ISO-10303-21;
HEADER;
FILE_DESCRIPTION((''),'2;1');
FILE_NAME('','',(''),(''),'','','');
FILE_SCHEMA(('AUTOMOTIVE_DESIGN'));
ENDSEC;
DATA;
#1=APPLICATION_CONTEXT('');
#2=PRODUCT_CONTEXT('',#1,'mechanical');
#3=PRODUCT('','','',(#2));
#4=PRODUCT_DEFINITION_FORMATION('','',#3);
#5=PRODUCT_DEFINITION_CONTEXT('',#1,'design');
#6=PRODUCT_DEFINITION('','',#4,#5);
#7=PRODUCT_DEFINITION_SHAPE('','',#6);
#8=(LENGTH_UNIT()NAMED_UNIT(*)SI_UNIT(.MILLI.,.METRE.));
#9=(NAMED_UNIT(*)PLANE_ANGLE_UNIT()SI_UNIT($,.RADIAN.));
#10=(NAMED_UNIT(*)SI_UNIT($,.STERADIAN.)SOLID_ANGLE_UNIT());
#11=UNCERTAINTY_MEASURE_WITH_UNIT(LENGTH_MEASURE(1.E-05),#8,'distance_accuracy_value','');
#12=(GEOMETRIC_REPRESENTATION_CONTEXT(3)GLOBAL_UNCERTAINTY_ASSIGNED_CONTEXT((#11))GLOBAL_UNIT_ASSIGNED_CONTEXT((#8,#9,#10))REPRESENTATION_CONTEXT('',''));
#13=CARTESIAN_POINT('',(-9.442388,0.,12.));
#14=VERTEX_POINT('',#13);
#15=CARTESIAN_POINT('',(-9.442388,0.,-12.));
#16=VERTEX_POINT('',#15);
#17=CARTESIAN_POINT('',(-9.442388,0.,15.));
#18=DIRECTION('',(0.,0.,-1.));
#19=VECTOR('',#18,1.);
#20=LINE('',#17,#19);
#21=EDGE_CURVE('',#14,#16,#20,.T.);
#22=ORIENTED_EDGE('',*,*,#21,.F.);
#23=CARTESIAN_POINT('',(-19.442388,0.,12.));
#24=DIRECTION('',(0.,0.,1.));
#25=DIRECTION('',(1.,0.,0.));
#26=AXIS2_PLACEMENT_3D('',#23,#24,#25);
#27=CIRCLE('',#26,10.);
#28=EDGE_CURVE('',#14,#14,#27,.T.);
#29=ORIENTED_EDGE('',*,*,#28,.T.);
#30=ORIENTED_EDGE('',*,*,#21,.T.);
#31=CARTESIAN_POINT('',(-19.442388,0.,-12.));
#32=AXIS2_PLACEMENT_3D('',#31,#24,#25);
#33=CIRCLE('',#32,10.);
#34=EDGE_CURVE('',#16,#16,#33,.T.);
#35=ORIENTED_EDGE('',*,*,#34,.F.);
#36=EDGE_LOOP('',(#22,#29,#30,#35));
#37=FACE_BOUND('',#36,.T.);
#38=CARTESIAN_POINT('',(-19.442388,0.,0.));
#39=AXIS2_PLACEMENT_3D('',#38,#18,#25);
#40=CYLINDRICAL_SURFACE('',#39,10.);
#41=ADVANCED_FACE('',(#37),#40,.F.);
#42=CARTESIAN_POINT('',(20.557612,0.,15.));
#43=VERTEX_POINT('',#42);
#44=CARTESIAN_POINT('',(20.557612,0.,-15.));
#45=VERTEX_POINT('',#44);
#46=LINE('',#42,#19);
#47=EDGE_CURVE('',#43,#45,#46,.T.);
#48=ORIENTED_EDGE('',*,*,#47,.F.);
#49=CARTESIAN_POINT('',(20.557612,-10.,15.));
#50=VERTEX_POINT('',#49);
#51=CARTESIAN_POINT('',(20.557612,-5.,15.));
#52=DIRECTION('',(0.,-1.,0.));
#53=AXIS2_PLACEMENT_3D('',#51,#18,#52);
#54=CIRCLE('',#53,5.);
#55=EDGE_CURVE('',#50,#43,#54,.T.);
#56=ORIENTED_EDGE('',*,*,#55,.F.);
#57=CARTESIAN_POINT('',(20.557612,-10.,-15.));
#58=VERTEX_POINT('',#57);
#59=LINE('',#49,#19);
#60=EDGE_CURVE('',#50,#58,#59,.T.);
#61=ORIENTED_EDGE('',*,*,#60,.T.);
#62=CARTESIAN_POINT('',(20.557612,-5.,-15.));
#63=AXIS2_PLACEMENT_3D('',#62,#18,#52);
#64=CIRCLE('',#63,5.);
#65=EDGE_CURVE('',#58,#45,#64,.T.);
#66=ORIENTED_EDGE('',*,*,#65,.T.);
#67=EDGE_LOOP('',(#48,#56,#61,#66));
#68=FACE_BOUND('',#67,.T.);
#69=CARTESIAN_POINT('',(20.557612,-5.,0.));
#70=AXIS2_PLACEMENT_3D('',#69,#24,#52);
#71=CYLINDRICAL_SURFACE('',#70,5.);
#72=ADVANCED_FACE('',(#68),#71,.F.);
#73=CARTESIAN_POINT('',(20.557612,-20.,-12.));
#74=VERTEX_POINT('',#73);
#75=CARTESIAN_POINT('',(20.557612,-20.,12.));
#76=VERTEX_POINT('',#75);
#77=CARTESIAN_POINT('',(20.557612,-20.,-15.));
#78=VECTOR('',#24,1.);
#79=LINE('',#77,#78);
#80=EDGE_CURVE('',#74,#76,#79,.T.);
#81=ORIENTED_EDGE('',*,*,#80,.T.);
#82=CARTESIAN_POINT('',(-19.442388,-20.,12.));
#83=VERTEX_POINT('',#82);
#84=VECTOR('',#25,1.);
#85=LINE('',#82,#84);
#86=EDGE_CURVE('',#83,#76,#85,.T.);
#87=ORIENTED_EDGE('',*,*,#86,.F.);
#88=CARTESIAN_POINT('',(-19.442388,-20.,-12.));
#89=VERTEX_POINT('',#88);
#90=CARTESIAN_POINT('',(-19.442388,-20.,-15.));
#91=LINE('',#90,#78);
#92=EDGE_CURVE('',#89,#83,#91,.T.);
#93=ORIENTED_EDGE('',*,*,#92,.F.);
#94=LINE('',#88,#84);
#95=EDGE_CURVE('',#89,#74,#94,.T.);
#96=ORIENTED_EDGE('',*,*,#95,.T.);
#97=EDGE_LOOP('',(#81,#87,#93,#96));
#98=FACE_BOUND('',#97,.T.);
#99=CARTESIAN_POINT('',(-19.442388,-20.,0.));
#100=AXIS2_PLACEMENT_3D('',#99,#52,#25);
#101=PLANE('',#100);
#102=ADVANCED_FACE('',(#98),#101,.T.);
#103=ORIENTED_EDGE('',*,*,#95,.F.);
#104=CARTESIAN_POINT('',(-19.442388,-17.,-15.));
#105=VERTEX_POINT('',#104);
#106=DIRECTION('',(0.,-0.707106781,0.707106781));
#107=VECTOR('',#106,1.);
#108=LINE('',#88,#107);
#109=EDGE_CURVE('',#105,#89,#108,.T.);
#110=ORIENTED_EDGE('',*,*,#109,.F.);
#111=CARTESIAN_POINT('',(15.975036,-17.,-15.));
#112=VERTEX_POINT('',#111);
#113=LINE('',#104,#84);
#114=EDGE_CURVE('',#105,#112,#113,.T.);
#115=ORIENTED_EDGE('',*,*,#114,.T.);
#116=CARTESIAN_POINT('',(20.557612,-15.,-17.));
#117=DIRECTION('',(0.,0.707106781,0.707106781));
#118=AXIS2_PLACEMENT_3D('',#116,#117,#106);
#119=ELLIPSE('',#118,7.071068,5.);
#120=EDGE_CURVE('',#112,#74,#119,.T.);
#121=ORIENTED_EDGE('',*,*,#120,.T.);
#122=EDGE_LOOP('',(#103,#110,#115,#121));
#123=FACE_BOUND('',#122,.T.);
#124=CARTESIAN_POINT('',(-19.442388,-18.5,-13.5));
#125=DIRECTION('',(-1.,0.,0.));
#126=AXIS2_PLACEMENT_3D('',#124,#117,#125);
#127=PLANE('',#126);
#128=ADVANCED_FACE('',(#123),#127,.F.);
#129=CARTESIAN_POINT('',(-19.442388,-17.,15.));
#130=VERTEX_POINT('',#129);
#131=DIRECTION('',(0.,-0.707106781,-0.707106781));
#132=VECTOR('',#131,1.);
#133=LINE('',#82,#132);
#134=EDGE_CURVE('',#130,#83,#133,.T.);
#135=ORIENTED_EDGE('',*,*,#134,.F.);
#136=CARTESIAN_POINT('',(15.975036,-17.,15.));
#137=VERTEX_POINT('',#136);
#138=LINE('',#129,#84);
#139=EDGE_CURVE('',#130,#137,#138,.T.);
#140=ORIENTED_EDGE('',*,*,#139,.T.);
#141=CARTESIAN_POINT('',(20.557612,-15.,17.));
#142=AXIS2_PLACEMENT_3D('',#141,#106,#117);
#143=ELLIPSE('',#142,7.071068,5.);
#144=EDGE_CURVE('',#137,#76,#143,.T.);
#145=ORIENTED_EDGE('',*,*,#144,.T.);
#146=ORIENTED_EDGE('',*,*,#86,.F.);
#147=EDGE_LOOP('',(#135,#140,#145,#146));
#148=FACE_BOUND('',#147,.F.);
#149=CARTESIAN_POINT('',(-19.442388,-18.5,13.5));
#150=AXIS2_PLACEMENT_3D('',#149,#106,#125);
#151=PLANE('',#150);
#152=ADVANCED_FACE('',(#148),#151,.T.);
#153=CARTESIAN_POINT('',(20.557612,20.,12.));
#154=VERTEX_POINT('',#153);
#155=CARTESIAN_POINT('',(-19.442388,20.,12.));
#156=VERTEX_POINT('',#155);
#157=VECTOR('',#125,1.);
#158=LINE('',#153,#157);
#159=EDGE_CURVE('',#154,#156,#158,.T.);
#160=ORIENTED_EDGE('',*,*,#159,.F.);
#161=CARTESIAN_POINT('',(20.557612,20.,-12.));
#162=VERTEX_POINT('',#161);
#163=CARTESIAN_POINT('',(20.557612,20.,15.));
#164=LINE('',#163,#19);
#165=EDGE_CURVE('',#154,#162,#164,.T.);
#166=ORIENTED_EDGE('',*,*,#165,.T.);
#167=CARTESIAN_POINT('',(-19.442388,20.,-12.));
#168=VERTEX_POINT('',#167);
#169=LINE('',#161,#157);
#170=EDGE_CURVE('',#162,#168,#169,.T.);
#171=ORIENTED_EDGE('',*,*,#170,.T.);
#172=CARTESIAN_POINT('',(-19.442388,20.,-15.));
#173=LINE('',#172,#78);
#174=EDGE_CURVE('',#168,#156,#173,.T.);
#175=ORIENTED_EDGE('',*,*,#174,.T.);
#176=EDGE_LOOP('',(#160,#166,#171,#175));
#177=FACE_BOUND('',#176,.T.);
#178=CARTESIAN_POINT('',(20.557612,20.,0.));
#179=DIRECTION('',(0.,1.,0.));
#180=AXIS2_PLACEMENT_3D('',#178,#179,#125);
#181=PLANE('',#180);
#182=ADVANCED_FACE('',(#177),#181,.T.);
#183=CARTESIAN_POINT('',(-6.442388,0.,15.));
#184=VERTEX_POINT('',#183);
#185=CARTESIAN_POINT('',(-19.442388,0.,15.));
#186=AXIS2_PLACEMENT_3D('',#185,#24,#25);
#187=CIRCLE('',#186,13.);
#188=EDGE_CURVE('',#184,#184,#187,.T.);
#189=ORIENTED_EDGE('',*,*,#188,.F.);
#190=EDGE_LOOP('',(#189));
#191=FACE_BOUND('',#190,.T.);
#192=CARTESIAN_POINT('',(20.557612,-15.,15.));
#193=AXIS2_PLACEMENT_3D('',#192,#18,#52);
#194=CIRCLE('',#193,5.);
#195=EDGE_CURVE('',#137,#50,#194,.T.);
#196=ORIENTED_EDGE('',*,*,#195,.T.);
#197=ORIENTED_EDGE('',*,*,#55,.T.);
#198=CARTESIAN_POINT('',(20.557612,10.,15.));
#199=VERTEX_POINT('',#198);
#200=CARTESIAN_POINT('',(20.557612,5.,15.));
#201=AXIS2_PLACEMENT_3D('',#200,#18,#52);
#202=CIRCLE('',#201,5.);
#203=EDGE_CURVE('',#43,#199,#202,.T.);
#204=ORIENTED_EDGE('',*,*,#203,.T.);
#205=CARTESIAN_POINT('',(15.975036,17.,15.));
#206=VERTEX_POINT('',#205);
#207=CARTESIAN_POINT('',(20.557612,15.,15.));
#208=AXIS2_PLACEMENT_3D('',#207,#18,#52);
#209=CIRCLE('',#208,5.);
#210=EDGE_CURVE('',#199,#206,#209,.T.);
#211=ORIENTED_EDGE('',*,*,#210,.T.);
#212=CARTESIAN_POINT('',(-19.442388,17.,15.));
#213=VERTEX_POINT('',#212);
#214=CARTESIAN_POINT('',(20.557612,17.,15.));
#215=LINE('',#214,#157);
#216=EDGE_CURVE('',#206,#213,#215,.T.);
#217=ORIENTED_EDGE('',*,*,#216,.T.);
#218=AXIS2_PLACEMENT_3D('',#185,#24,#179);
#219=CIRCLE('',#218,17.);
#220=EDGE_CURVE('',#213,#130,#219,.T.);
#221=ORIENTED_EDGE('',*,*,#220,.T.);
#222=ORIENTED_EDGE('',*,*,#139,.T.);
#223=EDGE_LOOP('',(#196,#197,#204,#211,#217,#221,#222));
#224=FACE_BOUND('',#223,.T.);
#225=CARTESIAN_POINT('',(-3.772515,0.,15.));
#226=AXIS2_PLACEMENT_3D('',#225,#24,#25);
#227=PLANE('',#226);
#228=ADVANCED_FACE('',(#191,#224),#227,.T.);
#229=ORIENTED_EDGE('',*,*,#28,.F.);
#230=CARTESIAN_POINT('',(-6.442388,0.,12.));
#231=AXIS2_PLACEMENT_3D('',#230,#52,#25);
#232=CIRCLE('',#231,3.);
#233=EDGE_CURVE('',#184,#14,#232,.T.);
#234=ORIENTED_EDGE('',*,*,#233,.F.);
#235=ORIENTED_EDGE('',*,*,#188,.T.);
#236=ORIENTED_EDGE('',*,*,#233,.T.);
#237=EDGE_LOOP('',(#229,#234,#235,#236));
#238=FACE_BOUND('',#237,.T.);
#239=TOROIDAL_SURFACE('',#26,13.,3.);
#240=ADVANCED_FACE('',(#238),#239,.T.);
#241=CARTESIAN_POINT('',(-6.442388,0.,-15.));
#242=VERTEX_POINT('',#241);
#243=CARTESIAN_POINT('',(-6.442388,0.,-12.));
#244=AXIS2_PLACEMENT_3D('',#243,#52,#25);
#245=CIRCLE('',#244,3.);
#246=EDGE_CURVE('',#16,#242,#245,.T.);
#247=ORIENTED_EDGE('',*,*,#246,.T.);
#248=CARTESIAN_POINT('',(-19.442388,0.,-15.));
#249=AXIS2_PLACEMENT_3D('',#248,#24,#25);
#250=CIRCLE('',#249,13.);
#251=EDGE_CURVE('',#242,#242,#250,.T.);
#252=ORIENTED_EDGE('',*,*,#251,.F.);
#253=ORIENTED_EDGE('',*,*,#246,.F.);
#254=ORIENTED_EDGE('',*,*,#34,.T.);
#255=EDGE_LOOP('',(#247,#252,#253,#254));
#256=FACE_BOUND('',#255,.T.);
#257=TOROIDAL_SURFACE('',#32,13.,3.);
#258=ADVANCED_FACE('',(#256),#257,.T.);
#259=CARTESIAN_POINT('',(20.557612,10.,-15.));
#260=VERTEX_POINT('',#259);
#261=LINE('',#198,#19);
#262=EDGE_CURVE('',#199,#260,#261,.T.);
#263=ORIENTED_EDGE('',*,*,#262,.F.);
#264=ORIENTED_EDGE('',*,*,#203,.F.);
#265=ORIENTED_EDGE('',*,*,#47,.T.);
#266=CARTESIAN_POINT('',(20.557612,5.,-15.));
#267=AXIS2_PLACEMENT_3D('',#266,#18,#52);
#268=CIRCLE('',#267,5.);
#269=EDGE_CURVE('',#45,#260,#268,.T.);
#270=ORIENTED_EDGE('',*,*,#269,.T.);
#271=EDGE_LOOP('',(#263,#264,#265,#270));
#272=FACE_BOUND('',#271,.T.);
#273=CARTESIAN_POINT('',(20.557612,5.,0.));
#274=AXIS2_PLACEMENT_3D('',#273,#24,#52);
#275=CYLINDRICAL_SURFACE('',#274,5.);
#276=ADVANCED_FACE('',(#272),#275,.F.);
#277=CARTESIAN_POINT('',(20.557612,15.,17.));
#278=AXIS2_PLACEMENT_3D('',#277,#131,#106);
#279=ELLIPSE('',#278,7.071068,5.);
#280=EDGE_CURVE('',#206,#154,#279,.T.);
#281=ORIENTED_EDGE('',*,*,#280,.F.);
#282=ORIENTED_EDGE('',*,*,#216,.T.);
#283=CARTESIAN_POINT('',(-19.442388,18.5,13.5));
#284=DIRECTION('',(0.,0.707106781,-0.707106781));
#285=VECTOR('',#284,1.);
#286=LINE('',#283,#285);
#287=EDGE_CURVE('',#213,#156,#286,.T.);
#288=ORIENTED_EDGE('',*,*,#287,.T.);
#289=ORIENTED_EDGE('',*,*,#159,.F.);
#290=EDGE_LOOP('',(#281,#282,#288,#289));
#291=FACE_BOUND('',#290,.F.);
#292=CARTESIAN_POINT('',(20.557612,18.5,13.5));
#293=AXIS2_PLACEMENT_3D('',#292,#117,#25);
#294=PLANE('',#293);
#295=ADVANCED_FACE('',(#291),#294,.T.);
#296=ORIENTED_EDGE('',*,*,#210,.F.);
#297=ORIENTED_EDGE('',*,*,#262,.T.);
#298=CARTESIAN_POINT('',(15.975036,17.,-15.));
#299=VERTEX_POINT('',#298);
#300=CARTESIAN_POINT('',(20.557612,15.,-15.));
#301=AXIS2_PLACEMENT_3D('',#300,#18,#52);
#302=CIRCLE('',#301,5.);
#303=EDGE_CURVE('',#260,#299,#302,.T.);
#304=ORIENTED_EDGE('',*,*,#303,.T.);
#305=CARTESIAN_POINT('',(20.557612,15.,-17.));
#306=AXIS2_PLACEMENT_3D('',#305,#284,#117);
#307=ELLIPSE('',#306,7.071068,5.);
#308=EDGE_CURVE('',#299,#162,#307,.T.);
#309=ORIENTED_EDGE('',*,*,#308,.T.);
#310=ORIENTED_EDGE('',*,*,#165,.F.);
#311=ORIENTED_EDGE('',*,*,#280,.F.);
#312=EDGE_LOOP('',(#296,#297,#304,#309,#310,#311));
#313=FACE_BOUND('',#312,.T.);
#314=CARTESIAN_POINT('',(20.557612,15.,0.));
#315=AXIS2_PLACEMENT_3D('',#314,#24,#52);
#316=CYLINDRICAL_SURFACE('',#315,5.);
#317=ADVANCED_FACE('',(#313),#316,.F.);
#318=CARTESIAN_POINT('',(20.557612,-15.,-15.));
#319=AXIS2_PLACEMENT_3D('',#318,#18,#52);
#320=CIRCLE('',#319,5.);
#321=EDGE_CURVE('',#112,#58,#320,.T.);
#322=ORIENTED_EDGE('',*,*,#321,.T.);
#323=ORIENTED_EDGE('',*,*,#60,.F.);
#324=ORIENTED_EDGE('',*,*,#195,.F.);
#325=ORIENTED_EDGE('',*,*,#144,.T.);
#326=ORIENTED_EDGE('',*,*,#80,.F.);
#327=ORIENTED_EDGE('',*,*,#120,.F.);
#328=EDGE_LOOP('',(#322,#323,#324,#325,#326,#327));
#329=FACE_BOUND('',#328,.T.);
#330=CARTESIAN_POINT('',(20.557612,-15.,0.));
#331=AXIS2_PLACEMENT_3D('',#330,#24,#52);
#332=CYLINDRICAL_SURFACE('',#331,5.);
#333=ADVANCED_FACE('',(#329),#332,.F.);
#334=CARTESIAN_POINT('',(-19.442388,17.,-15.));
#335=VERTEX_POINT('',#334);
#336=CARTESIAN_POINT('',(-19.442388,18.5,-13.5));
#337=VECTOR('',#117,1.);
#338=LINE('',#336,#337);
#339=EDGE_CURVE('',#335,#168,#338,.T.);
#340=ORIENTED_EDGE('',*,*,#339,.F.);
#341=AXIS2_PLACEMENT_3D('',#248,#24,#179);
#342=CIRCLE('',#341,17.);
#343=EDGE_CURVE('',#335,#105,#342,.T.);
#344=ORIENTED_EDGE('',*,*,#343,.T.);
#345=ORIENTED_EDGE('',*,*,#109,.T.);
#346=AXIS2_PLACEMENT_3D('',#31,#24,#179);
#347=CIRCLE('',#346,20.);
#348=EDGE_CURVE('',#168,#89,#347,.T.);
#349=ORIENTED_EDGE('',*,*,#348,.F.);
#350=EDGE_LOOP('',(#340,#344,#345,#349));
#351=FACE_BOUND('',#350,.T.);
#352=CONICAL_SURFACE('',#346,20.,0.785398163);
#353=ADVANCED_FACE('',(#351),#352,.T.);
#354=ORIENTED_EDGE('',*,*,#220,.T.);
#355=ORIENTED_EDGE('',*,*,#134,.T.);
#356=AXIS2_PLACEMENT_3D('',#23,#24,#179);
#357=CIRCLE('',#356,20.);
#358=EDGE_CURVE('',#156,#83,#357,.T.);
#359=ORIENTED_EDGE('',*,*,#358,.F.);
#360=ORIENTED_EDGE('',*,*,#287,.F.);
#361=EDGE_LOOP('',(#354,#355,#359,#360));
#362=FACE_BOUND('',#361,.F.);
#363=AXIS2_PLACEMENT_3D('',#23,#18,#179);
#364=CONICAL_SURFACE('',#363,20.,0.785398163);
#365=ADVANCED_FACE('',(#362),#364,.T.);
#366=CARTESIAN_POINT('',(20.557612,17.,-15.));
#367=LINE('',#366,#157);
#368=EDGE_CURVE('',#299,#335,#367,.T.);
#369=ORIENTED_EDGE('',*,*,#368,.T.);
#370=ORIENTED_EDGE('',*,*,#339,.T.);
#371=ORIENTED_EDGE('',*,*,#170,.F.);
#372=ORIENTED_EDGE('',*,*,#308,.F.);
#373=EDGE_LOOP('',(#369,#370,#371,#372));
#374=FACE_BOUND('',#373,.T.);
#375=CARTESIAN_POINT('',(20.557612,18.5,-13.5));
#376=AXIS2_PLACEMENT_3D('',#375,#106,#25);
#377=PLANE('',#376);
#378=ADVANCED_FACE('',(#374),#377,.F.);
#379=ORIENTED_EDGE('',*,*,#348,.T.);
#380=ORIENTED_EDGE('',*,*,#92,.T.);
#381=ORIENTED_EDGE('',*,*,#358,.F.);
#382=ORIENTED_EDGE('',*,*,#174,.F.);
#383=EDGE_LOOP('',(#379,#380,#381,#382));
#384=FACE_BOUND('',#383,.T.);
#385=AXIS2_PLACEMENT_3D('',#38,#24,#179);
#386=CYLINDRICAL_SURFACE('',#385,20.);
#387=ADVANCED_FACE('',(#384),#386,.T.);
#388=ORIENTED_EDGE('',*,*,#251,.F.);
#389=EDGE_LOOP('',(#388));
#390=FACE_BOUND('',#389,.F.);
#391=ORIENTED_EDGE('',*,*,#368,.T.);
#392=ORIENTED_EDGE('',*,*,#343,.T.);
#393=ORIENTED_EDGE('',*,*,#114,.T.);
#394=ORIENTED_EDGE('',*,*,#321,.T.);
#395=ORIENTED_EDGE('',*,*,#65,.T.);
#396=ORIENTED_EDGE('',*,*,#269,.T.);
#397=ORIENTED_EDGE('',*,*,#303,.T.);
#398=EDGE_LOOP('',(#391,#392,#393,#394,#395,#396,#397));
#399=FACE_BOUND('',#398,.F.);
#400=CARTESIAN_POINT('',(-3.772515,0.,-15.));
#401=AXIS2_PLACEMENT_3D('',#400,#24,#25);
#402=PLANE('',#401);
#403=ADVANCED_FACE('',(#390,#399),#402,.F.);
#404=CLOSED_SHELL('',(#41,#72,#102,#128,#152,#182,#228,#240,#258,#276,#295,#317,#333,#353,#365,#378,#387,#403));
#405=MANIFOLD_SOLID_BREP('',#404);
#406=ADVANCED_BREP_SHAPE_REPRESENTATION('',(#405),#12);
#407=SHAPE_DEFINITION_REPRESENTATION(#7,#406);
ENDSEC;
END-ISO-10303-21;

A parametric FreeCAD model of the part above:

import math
import FreeCAD as App
import Part
import Sketcher


def edges_at(feature, points):
    """Names of the edges that pass closest to the given points."""
    edges = feature.Shape.Edges
    near = lambda p: min(range(len(edges)), key=lambda i: edges[i].distToShape(Part.Vertex(*p))[0])
    return sorted({f"Edge{near(p) + 1}" for p in points})

doc = App.newDocument("Part")
body = doc.addObject("PartDesign::Body", "Body")

# Sketch on XY plane
sketch1 = body.newObject("Sketcher::SketchObject", "Sketch")
sketch1.AttachmentSupport = (doc.getObject("XY_Plane"), [""])
sketch1.MapMode = "FlatFace"
sketch1.addGeometry(Part.LineSegment(App.Vector(21, 20, 0), App.Vector(-19, 20, 0)), False)
sketch1.addGeometry(Part.ArcOfCircle(Part.Circle(App.Vector(-19, 0, 0), App.Vector(0, 0, 1), 20), math.radians(90), math.radians(270)), False)
sketch1.addGeometry(Part.LineSegment(App.Vector(-19, -20, 0), App.Vector(21, -20, 0)), False)
sketch1.addGeometry(Part.ArcOfCircle(Part.Circle(App.Vector(21, -15, 0), App.Vector(0, 0, 1), 5), math.radians(90), math.radians(270)), False)
sketch1.addGeometry(Part.ArcOfCircle(Part.Circle(App.Vector(21, -5, 0), App.Vector(0, 0, 1), 5), math.radians(90), math.radians(270)), False)
sketch1.addGeometry(Part.ArcOfCircle(Part.Circle(App.Vector(21, 5, 0), App.Vector(0, 0, 1), 5), math.radians(90), math.radians(270)), False)
sketch1.addGeometry(Part.ArcOfCircle(Part.Circle(App.Vector(21, 15, 0), App.Vector(0, 0, 1), 5), math.radians(90), math.radians(270)), False)
sketch1.addGeometry(Part.Circle(App.Vector(-19, 0, 0), App.Vector(0, 0, 1), 10), False)
sketch1.addConstraint(Sketcher.Constraint("Tangent", 0, 2, 1, 1))
sketch1.addConstraint(Sketcher.Constraint("Tangent", 1, 2, 2, 1))
sketch1.addConstraint(Sketcher.Constraint("Tangent", 2, 2, 3, 2))
sketch1.addConstraint(Sketcher.Constraint("Tangent", 3, 1, 4, 2))
sketch1.addConstraint(Sketcher.Constraint("Tangent", 4, 1, 5, 2))
sketch1.addConstraint(Sketcher.Constraint("Tangent", 5, 1, 6, 2))
sketch1.addConstraint(Sketcher.Constraint("Tangent", 6, 1, 0, 1))
sketch1.addConstraint(Sketcher.Constraint("Horizontal", 0))
sketch1.addConstraint(Sketcher.Constraint("Horizontal", 2))
sketch1.addConstraint(Sketcher.Constraint("Coincident", 7, 3, 1, 3))
sketch1.addConstraint(Sketcher.Constraint("Equal", 3, 4))
sketch1.addConstraint(Sketcher.Constraint("Equal", 4, 5))
sketch1.addConstraint(Sketcher.Constraint("Equal", 5, 6))
sketch1.addConstraint(Sketcher.Constraint("Symmetric", 4, 3, 5, 3, -1))
sketch1.addConstraint(Sketcher.Constraint("Vertical", 3, 3, 4, 3))
sketch1.addConstraint(Sketcher.Constraint("Vertical", 5, 3, 6, 3))
sketch1.addConstraint(Sketcher.Constraint("Diameter", 7, 20.0))
sketch1.addConstraint(Sketcher.Constraint("Radius", 1, 20.0))
sketch1.addConstraint(Sketcher.Constraint("DistanceX", 0, 2, 0, 1, 40.0))
sketch1.addConstraint(Sketcher.Constraint("DistanceX", 1, 3, -1, 1, 19.442388))
pad1 = body.newObject("PartDesign::Pad", "Pad")
pad1.Profile = sketch1
pad1.Length = 30
pad1.Midplane = True
doc.recompute()

fillet = body.newObject("PartDesign::Fillet", "Fillet")
fillet.Base = (pad1, edges_at(pad1, [(-29.442, 0, 15)]))
fillet.Radius = 3
doc.recompute()

fillet2 = body.newObject("PartDesign::Fillet", "Fillet001")
fillet2.Base = (fillet, edges_at(fillet, [(-29.442, 0, -15)]))
fillet2.Radius = 3
doc.recompute()

chamfer = body.newObject("PartDesign::Chamfer", "Chamfer")
chamfer.Base = (fillet2, edges_at(fillet2, [(0.558, 20, 15), (-39.442, 0, 15), (0.558, -20, 15)]))
chamfer.Size = 3
doc.recompute()

chamfer2 = body.newObject("PartDesign::Chamfer", "Chamfer001")
chamfer2.Base = (chamfer, edges_at(chamfer, [(0.558, -20, -15), (-39.442, 0, -15), (0.558, 20, -15)]))
chamfer2.Size = 3

doc.recompute()
